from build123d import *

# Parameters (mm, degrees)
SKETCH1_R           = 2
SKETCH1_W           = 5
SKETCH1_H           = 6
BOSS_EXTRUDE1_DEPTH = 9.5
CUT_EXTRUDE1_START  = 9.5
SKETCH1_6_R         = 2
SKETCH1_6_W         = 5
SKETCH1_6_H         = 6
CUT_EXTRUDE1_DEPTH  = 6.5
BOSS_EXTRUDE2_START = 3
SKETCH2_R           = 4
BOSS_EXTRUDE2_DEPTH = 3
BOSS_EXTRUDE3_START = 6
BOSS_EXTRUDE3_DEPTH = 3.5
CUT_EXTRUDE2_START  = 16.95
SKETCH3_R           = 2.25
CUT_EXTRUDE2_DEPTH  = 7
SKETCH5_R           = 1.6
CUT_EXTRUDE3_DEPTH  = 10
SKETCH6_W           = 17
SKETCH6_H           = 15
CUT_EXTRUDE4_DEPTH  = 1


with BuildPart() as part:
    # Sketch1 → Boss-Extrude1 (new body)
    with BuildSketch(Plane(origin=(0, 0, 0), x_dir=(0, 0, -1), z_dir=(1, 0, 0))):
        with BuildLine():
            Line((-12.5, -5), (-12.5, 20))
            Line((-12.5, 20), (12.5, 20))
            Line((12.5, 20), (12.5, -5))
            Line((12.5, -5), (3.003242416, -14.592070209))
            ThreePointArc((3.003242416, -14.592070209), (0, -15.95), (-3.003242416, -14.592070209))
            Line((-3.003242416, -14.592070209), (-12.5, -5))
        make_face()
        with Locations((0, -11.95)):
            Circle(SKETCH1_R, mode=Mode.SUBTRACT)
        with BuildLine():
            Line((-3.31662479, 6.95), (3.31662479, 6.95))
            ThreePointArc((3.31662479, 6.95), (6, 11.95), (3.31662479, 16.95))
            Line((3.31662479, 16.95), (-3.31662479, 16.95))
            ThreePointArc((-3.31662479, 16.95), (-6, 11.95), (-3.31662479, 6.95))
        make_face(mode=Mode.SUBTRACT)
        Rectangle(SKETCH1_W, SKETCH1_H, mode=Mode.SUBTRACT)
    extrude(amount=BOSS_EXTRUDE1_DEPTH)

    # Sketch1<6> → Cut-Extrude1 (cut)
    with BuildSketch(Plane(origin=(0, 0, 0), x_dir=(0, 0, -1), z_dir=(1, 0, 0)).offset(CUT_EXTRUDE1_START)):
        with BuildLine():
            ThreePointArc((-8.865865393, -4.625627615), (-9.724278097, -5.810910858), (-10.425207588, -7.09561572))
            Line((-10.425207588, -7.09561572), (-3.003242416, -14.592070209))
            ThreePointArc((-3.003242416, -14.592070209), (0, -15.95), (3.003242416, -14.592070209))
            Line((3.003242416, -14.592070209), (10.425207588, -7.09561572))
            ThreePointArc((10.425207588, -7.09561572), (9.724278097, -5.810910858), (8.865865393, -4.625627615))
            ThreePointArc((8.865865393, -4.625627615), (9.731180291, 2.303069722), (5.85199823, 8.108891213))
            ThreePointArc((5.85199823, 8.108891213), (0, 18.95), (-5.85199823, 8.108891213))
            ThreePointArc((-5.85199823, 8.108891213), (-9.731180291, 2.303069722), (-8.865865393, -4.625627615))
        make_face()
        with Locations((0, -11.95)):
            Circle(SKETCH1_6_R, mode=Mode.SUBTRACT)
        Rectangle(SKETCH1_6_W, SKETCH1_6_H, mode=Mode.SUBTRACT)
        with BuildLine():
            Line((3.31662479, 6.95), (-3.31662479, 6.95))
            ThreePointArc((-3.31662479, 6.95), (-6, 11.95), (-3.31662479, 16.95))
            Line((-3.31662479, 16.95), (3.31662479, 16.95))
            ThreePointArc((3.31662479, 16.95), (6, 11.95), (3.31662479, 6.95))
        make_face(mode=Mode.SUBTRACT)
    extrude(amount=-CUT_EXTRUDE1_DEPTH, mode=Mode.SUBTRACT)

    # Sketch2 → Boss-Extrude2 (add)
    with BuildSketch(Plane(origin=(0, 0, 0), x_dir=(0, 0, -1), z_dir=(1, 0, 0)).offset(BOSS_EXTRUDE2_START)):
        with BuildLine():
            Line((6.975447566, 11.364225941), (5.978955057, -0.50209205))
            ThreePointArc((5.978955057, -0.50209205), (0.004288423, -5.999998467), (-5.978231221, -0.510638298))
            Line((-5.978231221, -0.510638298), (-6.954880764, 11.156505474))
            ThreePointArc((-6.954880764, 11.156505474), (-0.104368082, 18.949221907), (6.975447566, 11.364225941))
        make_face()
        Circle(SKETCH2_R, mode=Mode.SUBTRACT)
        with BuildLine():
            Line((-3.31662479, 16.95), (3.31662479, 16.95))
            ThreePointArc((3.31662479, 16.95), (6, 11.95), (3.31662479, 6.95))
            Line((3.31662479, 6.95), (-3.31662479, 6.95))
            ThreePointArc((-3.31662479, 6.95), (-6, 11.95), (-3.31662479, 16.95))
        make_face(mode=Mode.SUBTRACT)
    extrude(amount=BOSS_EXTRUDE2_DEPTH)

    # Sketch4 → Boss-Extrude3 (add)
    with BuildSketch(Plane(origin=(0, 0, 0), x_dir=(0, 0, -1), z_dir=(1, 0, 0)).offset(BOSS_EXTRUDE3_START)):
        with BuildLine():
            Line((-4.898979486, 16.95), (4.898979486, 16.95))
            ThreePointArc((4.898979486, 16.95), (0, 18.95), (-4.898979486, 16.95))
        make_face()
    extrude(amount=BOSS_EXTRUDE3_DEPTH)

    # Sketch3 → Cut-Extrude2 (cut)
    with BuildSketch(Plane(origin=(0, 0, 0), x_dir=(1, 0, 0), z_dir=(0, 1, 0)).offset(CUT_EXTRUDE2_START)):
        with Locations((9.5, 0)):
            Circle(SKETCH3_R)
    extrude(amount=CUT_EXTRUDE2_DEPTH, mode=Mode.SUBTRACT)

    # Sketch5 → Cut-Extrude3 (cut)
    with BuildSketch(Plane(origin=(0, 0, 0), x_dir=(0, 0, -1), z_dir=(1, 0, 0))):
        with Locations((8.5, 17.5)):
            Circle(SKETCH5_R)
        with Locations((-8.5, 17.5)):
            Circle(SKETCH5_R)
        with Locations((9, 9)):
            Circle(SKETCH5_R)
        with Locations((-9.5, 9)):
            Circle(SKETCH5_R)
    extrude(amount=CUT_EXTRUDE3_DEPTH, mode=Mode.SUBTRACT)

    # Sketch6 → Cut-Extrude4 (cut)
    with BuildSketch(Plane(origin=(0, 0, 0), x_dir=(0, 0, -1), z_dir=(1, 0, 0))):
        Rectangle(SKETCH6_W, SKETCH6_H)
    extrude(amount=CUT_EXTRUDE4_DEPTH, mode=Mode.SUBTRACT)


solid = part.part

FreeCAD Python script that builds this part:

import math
import FreeCAD as App
import Part
import Sketcher
Q = App.Units.Quantity


def add_polygon(sketch, points):
    """Adds a closed chain of lines whose ends are joined by coincident constraints."""
    first, n = sketch.GeometryCount, len(points)
    for a, b in zip(points, points[1:] + points[:1]):
        sketch.addGeometry(Part.LineSegment(App.Vector(*a, 0), App.Vector(*b, 0)), False)
    for i in range(n):
        sketch.addConstraint(Sketcher.Constraint("Coincident", first + i, 2, first + (i + 1) % n, 1))

doc = App.newDocument("Part")
body = doc.addObject("PartDesign::Body", "Body")

sketch1 = body.newObject("Sketcher::SketchObject", "Sketch")
sketch1.AttachmentSupport = (doc.getObject("YZ_Plane"), [""])
sketch1.MapMode = "FlatFace"
sketch1.addGeometry(Part.LineSegment(App.Vector(20, 12.5, 0), App.Vector(-5, 12.5, 0)), False)
sketch1.addGeometry(Part.LineSegment(App.Vector(-5, 12.5, 0), App.Vector(-14.6, 3, 0)), False)
sketch1.addGeometry(Part.ArcOfCircle(Part.Circle(App.Vector(-12, 0, 0), App.Vector(0, 0, 1), 4), math.radians(131), math.radians(229)), False)
sketch1.addGeometry(Part.LineSegment(App.Vector(-14.6, -3, 0), App.Vector(-5, -12.5, 0)), False)
sketch1.addGeometry(Part.LineSegment(App.Vector(-5, -12.5, 0), App.Vector(20, -12.5, 0)), False)
sketch1.addGeometry(Part.LineSegment(App.Vector(20, -12.5, 0), App.Vector(20, 12.5, 0)), False)
sketch1.addGeometry(Part.Circle(App.Vector(-11.9, 0, 0), App.Vector(0, 0, 1), 2), False)
add_polygon(sketch1, [(-3, 2.5), (3, 2.5), (3, -2.5), (-3, -2.5)])
sketch1.addGeometry(Part.ArcOfCircle(Part.Circle(App.Vector(11.9, 0, 0), App.Vector(0, 0, 1), 6), math.radians(34), math.radians(146)), False)
sketch1.addGeometry(Part.LineSegment(App.Vector(16.9, 3.3, 0), App.Vector(16.9, -3.3, 0)), False)
sketch1.addGeometry(Part.ArcOfCircle(Part.Circle(App.Vector(11.9, 0, 0), App.Vector(0, 0, 1), 6), math.radians(-146), math.radians(-34)), False)
sketch1.addGeometry(Part.LineSegment(App.Vector(7, -3.3, 0), App.Vector(7, 3.3, 0)), False)
sketch1.addConstraint([
    Sketcher.Constraint("Coincident", 0, 2, 1, 1),
    Sketcher.Constraint("Coincident", 1, 2, 2, 1),
    Sketcher.Constraint("Coincident", 2, 2, 3, 1),
    Sketcher.Constraint("Coincident", 3, 2, 4, 1),
    Sketcher.Constraint("Coincident", 4, 2, 5, 1),
    Sketcher.Constraint("Coincident", 5, 2, 0, 1),
    Sketcher.Constraint("Coincident", 11, 1, 12, 1),
    Sketcher.Constraint("Coincident", 12, 2, 13, 2),
    Sketcher.Constraint("Coincident", 13, 1, 14, 1),
    Sketcher.Constraint("Coincident", 14, 2, 11, 2),
    Sketcher.Constraint("Horizontal", 0),
    Sketcher.Constraint("Horizontal", 4),
    Sketcher.Constraint("Vertical", 5),
    Sketcher.Constraint("Horizontal", 7),
    Sketcher.Constraint("Vertical", 8),
    Sketcher.Constraint("Horizontal", 9),
    Sketcher.Constraint("Vertical", 10),
    Sketcher.Constraint("Vertical", 12),
    Sketcher.Constraint("Vertical", 14),
    Sketcher.Constraint("Coincident", 6, 3, 2, 3),
    Sketcher.Constraint("Coincident", 13, 3, 11, 3),
    Sketcher.Constraint("Equal", 11, 13),
    Sketcher.Constraint("Symmetric", 2, 3, 11, 3, -1, 1),
    Sketcher.Constraint("Symmetric", 7, 2, 9, 2, -1, 1),
    Sketcher.Constraint("Symmetric", 1, 2, 2, 2, -1),
    Sketcher.Constraint("Symmetric", 0, 2, 3, 2, -1),
    Sketcher.Constraint("Horizontal", 12, 2, 13, 1),
    Sketcher.Constraint("Equal", 4, 5),
    Sketcher.Constraint("Diameter", 6, Q("4 mm")),
    Sketcher.Constraint("Radius", 2, Q("4 mm")),
    Sketcher.Constraint("Radius", 11, Q("6 mm")),
    Sketcher.Constraint("DistanceX", 0, 2, 0, 1, Q("25 mm")),
    Sketcher.Constraint("DistanceX", 7, 1, 7, 2, Q("6 mm")),
    Sketcher.Constraint("DistanceY", 8, 2, 8, 1, Q("5 mm")),
    Sketcher.Constraint("DistanceX", 0, 2, -1, 1, Q("5 mm")),
    Sketcher.Constraint("DistanceX", 11, 3, 11, 1, Q("5 mm")),
    Sketcher.Constraint("DistanceX", 6, 3, 11, 3, Q("23.9 mm")),
    Sketcher.Constraint("DistanceX", 1, 2, -1, 1, Q("14.59207 mm")),
])
pad1 = body.newObject("PartDesign::Pad", "Pad")
pad1.Profile = sketch1
pad1.Length = 9.5

sketch2 = body.newObject("Sketcher::SketchObject", "Sketch001")
sketch2.AttachmentSupport = (doc.getObject("YZ_Plane"), [""])
sketch2.MapMode = "FlatFace"
sketch2.AttachmentOffset = App.Placement(App.Vector(0, 0, 9.5), App.Rotation())
sketch2.addGeometry(Part.ArcOfCircle(Part.Circle(App.Vector(-11.9, 0, 0), App.Vector(0, 0, 1), 11.5), math.radians(50.44), math.radians(65.03)), False)
sketch2.addGeometry(Part.LineSegment(App.Vector(-7.1, 10.4, 0), App.Vector(-14.6, 3, 0)), False)
sketch2.addGeometry(Part.ArcOfCircle(Part.Circle(App.Vector(-12, 0, 0), App.Vector(0, 0, 1), 4), math.radians(131), math.radians(229)), False)
sketch2.addGeometry(Part.LineSegment(App.Vector(-14.6, -3, 0), App.Vector(-7.1, -10.4, 0)), False)
sketch2.addGeometry(Part.ArcOfCircle(Part.Circle(App.Vector(-11.9, 0, 0), App.Vector(0, 0, 1), 11.5), math.radians(-65.03), math.radians(-50.44)), False)
sketch2.addGeometry(Part.ArcOfCircle(Part.Circle(App.Vector(0, 0, 0), App.Vector(0, 0, 1), 10), math.radians(-118), math.radians(-36)), False)
sketch2.addGeometry(Part.ArcOfCircle(Part.Circle(App.Vector(11.9, 0, 0), App.Vector(0, 0, 1), 7), math.radians(-123), math.radians(123)), False)
sketch2.addGeometry(Part.ArcOfCircle(Part.Circle(App.Vector(0, 0, 0), App.Vector(0, 0, 1), 10), math.radians(36), math.radians(118)), False)
sketch2.addGeometry(Part.Circle(App.Vector(-11.9, 0, 0), App.Vector(0, 0, 1), 2), False)
add_polygon(sketch2, [(-3, -2.5), (-3, 2.5), (3, 2.5), (3, -2.5)])
sketch2.addGeometry(Part.ArcOfCircle(Part.Circle(App.Vector(11.9, 0, 0), App.Vector(0, 0, 1), 6), math.radians(-146), math.radians(-34)), False)
sketch2.addGeometry(Part.LineSegment(App.Vector(7, -3.3, 0), App.Vector(7, 3.3, 0)), False)
sketch2.addGeometry(Part.ArcOfCircle(Part.Circle(App.Vector(11.9, 0, 0), App.Vector(0, 0, 1), 6), math.radians(34), math.radians(146)), False)
sketch2.addGeometry(Part.LineSegment(App.Vector(16.9, 3.3, 0), App.Vector(16.9, -3.3, 0)), False)
sketch2.addConstraint([
    Sketcher.Constraint("Coincident", 0, 2, 1, 1),
    Sketcher.Constraint("Coincident", 1, 2, 2, 1),
    Sketcher.Constraint("Coincident", 2, 2, 3, 1),
    Sketcher.Constraint("Coincident", 3, 2, 4, 1),
    Sketcher.Constraint("Coincident", 4, 2, 5, 1),
    Sketcher.Constraint("Coincident", 5, 2, 6, 1),
    Sketcher.Constraint("Coincident", 6, 2, 7, 1),
    Sketcher.Constraint("Coincident", 7, 2, 0, 1),
    Sketcher.Constraint("Coincident", 13, 1, 14, 1),
    Sketcher.Constraint("Coincident", 14, 2, 15, 2),
    Sketcher.Constraint("Coincident", 15, 1, 16, 1),
    Sketcher.Constraint("Coincident", 16, 2, 13, 2),
    Sketcher.Constraint("Vertical", 9),
    Sketcher.Constraint("Horizontal", 10),
    Sketcher.Constraint("Vertical", 11),
    Sketcher.Constraint("Horizontal", 12),
    Sketcher.Constraint("Vertical", 14),
    Sketcher.Constraint("Vertical", 16),
    Sketcher.Constraint("Coincident", 5, 3, -1, 1),
    Sketcher.Constraint("Coincident", 7, 3, -1, 1),
    Sketcher.Constraint("Coincident", 2, 3, 0, 3),
    Sketcher.Constraint("Coincident", 4, 3, 0, 3),
    Sketcher.Constraint("Coincident", 8, 3, 0, 3),
    Sketcher.Constraint("Coincident", 13, 3, 6, 3),
    Sketcher.Constraint("Coincident", 15, 3, 6, 3),
    Sketcher.Constraint("Equal", 0, 4),
    Sketcher.Constraint("Equal", 5, 7),
    Sketcher.Constraint("Equal", 13, 15),
    Sketcher.Constraint("Symmetric", 0, 3, 6, 3, -1, 1),
    Sketcher.Constraint("Symmetric", 9, 2, 11, 2, -1, 1),
    Sketcher.Constraint("Symmetric", 1, 2, 2, 2, -1),
    Sketcher.Constraint("Horizontal", 14, 2, 15, 1),
    Sketcher.Constraint("Vertical", 0, 2, 3, 2),
    Sketcher.Constraint("Diameter", 8, Q("4 mm")),
    Sketcher.Constraint("Radius", 2, Q("4 mm")),
    Sketcher.Constraint("Radius", 5, Q("10 mm")),
    Sketcher.Constraint("Radius", 6, Q("7 mm")),
    Sketcher.Constraint("Radius", 13, Q("6 mm")),
    Sketcher.Constraint("Radius", 0, Q("11.5 mm")),
    Sketcher.Constraint("DistanceX", 10, 1, 10, 2, Q("6 mm")),
    Sketcher.Constraint("DistanceY", 9, 1, 9, 2, Q("5 mm")),
    Sketcher.Constraint("DistanceX", 13, 1, 6, 3, Q("5 mm")),
    Sketcher.Constraint("DistanceX", 0, 3, 6, 3, Q("23.9 mm")),
    Sketcher.Constraint("DistanceX", 1, 2, -1, 1, Q("14.59207 mm")),
    Sketcher.Constraint("DistanceX", 3, 2, 4, 2, Q("2.469988 mm")),
])
pocket1 = body.newObject("PartDesign::Pocket", "Pocket")
pocket1.Profile = sketch2
pocket1.Length = 6.5

sketch3 = body.newObject("Sketcher::SketchObject", "Sketch002")
sketch3.AttachmentSupport = (doc.getObject("YZ_Plane"), [""])
sketch3.MapMode = "FlatFace"
sketch3.AttachmentOffset = App.Placement(App.Vector(0, 0, 3), App.Rotation())
sketch3.addGeometry([
    Part.LineSegment(App.Vector(-0.5, -6, 0), App.Vector(11.4, -7, 0)),
    Part.ArcOfCircle(Part.Circle(App.Vector(11.9, 0, 0), App.Vector(0, 0, 1), 7), math.radians(-95), math.radians(97)),
    Part.LineSegment(App.Vector(11.2, 7, 0), App.Vector(-0.5, 6, 0)),
    Part.ArcOfCircle(Part.Circle(App.Vector(0, 0, 0), App.Vector(0, 0, 1), 6), math.radians(95), math.radians(265)),
    Part.Circle(App.Vector(0, 0, 0), App.Vector(0, 0, 1), 4),
    Part.LineSegment(App.Vector(16.9, 3.3, 0), App.Vector(16.9, -3.3, 0)),
    Part.ArcOfCircle(Part.Circle(App.Vector(11.9, 0, 0), App.Vector(0, 0, 1), 6), math.radians(-146), math.radians(-34)),
    Part.LineSegment(App.Vector(7, -3.3, 0), App.Vector(7, 3.3, 0)),
    Part.ArcOfCircle(Part.Circle(App.Vector(11.9, 0, 0), App.Vector(0, 0, 1), 6), math.radians(34), math.radians(146)),
], False)
sketch3.addConstraint([
    Sketcher.Constraint("Tangent", 0, 2, 1, 1),
    Sketcher.Constraint("Coincident", 1, 2, 2, 1),
    Sketcher.Constraint("Coincident", 2, 2, 3, 1),
    Sketcher.Constraint("Tangent", 3, 2, 0, 1),
    Sketcher.Constraint("Coincident", 5, 2, 6, 2),
    Sketcher.Constraint("Coincident", 6, 1, 7, 1),
    Sketcher.Constraint("Coincident", 7, 2, 8, 2),
    Sketcher.Constraint("Coincident", 8, 1, 5, 1),
    Sketcher.Constraint("Vertical", 5),
    Sketcher.Constraint("Vertical", 7),
    Sketcher.Constraint("Coincident", 3, 3, -1, 1),
    Sketcher.Constraint("Coincident", 4, 3, -1, 1),
    Sketcher.Constraint("Coincident", 6, 3, 1, 3),
    Sketcher.Constraint("Coincident", 8, 3, 1, 3),
    Sketcher.Constraint("Equal", 3, 6),
    Sketcher.Constraint("Equal", 6, 8),
    Sketcher.Constraint("PointOnObject", 1, 3, -1),
    Sketcher.Constraint("Horizontal", 5, 2, 6, 1),
    Sketcher.Constraint("Diameter", 4, Q("8 mm")),
    Sketcher.Constraint("Radius", 1, Q("7 mm")),
    Sketcher.Constraint("Radius", 3, Q("6 mm")),
    Sketcher.Constraint("DistanceX", 1, 3, 5, 2, Q("5 mm")),
    Sketcher.Constraint("DistanceX", -1, 1, 1, 3, Q("11.95 mm")),
    Sketcher.Constraint("Distance", 2, Q("11.70795 mm")),
    Sketcher.Constraint("DistanceY", -1, 1, 1, 2, Q("6.954881 mm")),
])
pad2 = body.newObject("PartDesign::Pad", "Pad001")
pad2.Profile = sketch3
pad2.Length = 3

sketch4 = body.newObject("Sketcher::SketchObject", "Sketch003")
sketch4.AttachmentSupport = (doc.getObject("YZ_Plane"), [""])
sketch4.MapMode = "FlatFace"
sketch4.AttachmentOffset = App.Placement(App.Vector(0, 0, 6), App.Rotation())
sketch4.addGeometry([
    Part.LineSegment(App.Vector(17, 5, 0), App.Vector(17, -5, 0)),
    Part.ArcOfCircle(Part.Circle(App.Vector(12, 0, 0), App.Vector(0, 0, 1), 7), math.radians(-44), math.radians(44)),
], False)
sketch4.addConstraint([
    Sketcher.Constraint("Coincident", 0, 1, 1, 2),
    Sketcher.Constraint("Coincident", 1, 1, 0, 2),
    Sketcher.Constraint("Vertical", 0),
    Sketcher.Constraint("PointOnObject", 1, 3, -1),
    Sketcher.Constraint("Radius", 1, Q("7 mm")),
    Sketcher.Constraint("DistanceX", 1, 3, 0, 1, Q("5 mm")),
    Sketcher.Constraint("DistanceX", -1, 1, 1, 3, Q("11.95 mm")),
])
pad3 = body.newObject("PartDesign::Pad", "Pad002")
pad3.Profile = sketch4
pad3.Length = 3.5

sketch5 = body.newObject("Sketcher::SketchObject", "Sketch004")
sketch5.AttachmentSupport = (doc.getObject("XZ_Plane"), [""])
sketch5.MapMode = "FlatFace"
sketch5.AttachmentOffset = App.Placement(App.Vector(0, 0, -16.95), App.Rotation())
sketch5.addGeometry(Part.Circle(App.Vector(9.5, 0, 0), App.Vector(0, 0, 1), 2.2), False)
sketch5.addConstraint([
    Sketcher.Constraint("PointOnObject", 0, 3, -1),
    Sketcher.Constraint("Diameter", 0, Q("4.5 mm")),
    Sketcher.Constraint("DistanceX", -1, 1, 0, 3, Q("9.5 mm")),
])
pocket2 = body.newObject("PartDesign::Pocket", "Pocket001")
pocket2.Profile = sketch5
pocket2.Length = 7

sketch6 = body.newObject("Sketcher::SketchObject", "Sketch005")
sketch6.AttachmentSupport = (doc.getObject("YZ_Plane"), [""])
sketch6.MapMode = "FlatFace"
sketch6.addGeometry([
    Part.Circle(App.Vector(17.5, -8.5, 0), App.Vector(0, 0, 1), 1.6),
    Part.Circle(App.Vector(17.5, 8.5, 0), App.Vector(0, 0, 1), 1.6),
    Part.Circle(App.Vector(9, -9, 0), App.Vector(0, 0, 1), 1.6),
    Part.Circle(App.Vector(9, 9.5, 0), App.Vector(0, 0, 1), 1.6),
], False)
sketch6.addConstraint([
    Sketcher.Constraint("Equal", 0, 1),
    Sketcher.Constraint("Equal", 1, 2),
    Sketcher.Constraint("Equal", 2, 3),
    Sketcher.Constraint("Symmetric", 0, 3, 1, 3, -1),
    Sketcher.Constraint("Vertical", 2, 3, 3, 3),
    Sketcher.Constraint("Diameter", 0, Q("3.2 mm")),
    Sketcher.Constraint("DistanceX", -1, 1, 2, 3, Q("9 mm")),
    Sketcher.Constraint("DistanceY", 2, 3, -1, 1, Q("9 mm")),
    Sketcher.Constraint("DistanceY", 0, 3, 1, 3, Q("17 mm")),
    Sketcher.Constraint("DistanceY", 1, 3, 3, 3, Q("1 mm")),
    Sketcher.Constraint("DistanceX", -1, 1, 0, 3, Q("17.5 mm")),
])
pocket3 = body.newObject("PartDesign::Pocket", "Pocket002")
pocket3.Profile = sketch6
pocket3.Length = 10
pocket3.Reversed = True

sketch7 = body.newObject("Sketcher::SketchObject", "Sketch006")
sketch7.AttachmentSupport = (doc.getObject("YZ_Plane"), [""])
sketch7.MapMode = "FlatFace"
add_polygon(sketch7, [(8, 8), (-8, 8), (-8, -8), (8, -8)])
sketch7.addConstraint([
    Sketcher.Constraint("Horizontal", 0),
    Sketcher.Constraint("Vertical", 1),
    Sketcher.Constraint("Horizontal", 2),
    Sketcher.Constraint("Vertical", 3),
    Sketcher.Constraint("Symmetric", 0, 2, 2, 2, -1, 1),
    Sketcher.Constraint("DistanceX", 0, 2, 0, 1, Q("15 mm")),
    Sketcher.Constraint("DistanceY", 1, 2, 1, 1, Q("17 mm")),
])
pocket4 = body.newObject("PartDesign::Pocket", "Pocket003")
pocket4.Profile = sketch7
pocket4.Length = 1
pocket4.Reversed = True

doc.recompute()
